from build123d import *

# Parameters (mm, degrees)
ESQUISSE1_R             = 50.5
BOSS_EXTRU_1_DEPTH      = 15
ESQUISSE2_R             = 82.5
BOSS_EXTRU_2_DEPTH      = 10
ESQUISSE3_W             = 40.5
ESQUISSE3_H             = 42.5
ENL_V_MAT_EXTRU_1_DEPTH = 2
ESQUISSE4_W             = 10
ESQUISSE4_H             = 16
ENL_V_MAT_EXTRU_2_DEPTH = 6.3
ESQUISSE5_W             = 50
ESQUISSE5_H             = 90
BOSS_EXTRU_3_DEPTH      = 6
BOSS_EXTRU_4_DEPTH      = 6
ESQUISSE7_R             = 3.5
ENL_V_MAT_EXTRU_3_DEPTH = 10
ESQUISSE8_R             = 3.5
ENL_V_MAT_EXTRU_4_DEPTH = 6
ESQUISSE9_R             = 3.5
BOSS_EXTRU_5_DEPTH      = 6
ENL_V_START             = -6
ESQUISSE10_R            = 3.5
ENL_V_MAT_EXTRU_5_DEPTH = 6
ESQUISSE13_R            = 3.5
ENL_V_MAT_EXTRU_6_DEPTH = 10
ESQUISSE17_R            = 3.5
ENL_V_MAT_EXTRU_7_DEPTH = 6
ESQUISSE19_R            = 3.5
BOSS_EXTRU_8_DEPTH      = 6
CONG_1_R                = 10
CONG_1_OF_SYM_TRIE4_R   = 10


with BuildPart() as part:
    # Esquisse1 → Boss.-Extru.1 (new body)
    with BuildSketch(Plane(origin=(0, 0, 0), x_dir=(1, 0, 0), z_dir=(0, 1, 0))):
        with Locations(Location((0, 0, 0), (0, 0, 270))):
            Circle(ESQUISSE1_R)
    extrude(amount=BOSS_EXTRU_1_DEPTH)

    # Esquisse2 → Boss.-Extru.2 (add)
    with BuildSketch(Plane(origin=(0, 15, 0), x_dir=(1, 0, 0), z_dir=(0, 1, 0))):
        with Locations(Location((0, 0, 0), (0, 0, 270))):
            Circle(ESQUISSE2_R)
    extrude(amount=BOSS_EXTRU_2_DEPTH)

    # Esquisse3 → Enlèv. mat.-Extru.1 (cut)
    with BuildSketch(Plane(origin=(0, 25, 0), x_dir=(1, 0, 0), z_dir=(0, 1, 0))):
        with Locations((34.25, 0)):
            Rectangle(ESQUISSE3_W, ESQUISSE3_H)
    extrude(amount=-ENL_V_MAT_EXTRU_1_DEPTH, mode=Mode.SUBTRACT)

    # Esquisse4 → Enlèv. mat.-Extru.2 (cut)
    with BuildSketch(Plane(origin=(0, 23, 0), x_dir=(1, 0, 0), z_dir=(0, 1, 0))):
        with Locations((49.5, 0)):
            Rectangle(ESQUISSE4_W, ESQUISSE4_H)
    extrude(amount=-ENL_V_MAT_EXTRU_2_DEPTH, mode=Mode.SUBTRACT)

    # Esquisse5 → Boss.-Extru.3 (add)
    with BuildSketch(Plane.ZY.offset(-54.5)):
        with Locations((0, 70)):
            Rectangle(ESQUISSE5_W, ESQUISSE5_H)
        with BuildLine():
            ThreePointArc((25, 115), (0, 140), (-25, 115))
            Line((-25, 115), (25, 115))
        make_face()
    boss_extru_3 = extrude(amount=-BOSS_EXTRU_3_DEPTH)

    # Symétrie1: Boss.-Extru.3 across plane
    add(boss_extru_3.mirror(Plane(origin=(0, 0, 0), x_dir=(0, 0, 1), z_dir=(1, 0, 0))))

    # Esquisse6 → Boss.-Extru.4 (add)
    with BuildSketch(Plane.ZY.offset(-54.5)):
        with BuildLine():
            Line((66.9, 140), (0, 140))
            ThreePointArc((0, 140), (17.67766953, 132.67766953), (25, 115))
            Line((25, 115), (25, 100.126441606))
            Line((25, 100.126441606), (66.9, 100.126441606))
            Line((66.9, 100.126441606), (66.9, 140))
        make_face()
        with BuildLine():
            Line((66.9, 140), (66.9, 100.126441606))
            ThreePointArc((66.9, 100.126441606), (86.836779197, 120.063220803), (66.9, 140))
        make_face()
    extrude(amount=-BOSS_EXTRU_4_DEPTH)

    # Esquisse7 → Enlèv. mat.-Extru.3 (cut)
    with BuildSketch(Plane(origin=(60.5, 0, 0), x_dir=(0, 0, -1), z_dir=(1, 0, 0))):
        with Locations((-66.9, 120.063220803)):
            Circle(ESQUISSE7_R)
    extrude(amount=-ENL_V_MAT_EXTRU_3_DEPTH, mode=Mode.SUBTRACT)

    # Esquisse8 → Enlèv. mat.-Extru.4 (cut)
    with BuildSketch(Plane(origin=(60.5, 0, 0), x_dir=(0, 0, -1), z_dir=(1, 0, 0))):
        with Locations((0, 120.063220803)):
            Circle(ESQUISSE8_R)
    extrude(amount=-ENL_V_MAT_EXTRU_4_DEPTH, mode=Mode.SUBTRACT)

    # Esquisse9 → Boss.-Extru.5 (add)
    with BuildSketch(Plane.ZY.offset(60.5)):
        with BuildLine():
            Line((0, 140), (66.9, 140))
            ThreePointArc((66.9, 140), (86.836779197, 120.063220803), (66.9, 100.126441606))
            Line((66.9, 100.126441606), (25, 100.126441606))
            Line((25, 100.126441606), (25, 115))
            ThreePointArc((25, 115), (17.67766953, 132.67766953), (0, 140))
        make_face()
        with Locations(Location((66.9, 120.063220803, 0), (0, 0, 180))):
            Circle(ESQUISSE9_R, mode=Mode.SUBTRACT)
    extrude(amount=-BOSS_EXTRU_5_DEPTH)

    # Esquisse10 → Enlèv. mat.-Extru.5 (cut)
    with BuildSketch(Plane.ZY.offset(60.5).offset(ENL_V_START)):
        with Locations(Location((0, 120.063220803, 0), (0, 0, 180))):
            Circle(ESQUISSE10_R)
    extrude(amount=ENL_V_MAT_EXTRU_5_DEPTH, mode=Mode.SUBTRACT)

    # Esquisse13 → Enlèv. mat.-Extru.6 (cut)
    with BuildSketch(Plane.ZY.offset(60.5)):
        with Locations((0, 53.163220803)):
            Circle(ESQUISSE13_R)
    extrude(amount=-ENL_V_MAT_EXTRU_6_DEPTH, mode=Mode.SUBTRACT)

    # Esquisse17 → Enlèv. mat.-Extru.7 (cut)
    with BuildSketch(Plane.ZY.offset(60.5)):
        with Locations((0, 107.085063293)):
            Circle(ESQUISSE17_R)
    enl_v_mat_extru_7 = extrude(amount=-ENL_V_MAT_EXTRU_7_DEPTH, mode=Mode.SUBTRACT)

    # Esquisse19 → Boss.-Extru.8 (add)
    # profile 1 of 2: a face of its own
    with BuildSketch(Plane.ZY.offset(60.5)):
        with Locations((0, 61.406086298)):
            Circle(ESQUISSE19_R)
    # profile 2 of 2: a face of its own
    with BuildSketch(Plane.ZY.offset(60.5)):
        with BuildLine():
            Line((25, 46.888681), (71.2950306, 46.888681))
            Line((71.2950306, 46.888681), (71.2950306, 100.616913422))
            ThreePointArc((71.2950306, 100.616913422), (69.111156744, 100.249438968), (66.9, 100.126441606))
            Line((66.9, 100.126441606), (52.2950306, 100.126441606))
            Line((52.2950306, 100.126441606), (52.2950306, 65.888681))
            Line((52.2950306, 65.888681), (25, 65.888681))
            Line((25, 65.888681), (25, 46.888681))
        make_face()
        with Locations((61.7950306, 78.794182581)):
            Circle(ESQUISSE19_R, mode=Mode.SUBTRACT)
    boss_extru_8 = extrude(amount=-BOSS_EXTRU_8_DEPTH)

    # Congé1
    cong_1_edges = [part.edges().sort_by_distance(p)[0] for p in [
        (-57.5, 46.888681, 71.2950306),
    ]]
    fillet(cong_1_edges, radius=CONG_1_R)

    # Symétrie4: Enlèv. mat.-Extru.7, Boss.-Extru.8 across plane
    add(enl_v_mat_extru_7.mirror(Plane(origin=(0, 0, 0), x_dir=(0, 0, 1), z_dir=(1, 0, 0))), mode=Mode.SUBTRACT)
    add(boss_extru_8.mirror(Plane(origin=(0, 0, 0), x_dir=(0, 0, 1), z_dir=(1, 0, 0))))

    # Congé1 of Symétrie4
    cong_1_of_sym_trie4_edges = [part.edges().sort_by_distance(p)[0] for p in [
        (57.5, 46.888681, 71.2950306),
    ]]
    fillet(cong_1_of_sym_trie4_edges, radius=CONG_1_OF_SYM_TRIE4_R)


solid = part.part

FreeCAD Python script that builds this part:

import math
import FreeCAD as App
import Part
import Sketcher
from FreeCAD import Vector


def edges_at(feature, points):
    """Names of the edges that pass closest to the given points."""
    edges = feature.Shape.Edges
    near = lambda p: min(range(len(edges)), key=lambda i: edges[i].distToShape(Part.Vertex(*p))[0])
    return sorted({f"Edge{near(p) + 1}" for p in points})

doc = App.newDocument("Part")
body = doc.addObject("PartDesign::Body", "Body")

# Sketch on XZ plane
sketch1 = body.newObject("Sketcher::SketchObject", "Sketch")
sketch1.AttachmentSupport = (doc.getObject("XZ_Plane"), [""])
sketch1.MapMode = "FlatFace"
sketch1.addGeometry(Part.Circle(Vector(0, 0, 0), Vector(0, 0, 1), 50.5), False)
sketch1.addConstraint(Sketcher.Constraint("Coincident", 0, 3, -1, 1))
sketch1.addConstraint(Sketcher.Constraint("Diameter", 0, 101.0))
pad1 = body.newObject("PartDesign::Pad", "Pad")
pad1.Profile = sketch1
pad1.Length = 15
pad1.Reversed = True

# Sketch on XZ plane
sketch2 = body.newObject("Sketcher::SketchObject", "Sketch001")
sketch2.AttachmentSupport = (doc.getObject("XZ_Plane"), [""])
sketch2.MapMode = "FlatFace"
sketch2.AttachmentOffset = App.Placement(Vector(0, 0, -15), App.Rotation())
sketch2.addGeometry(Part.Circle(Vector(0, 0, 0), Vector(0, 0, 1), 82.5), False)
sketch2.addConstraint(Sketcher.Constraint("Coincident", 0, 3, -1, 1))
sketch2.addConstraint(Sketcher.Constraint("Diameter", 0, 165.0))
pad2 = body.newObject("PartDesign::Pad", "Pad001")
pad2.Profile = sketch2
pad2.Length = 10
pad2.Reversed = True

# Sketch on XZ plane
sketch3 = body.newObject("Sketcher::SketchObject", "Sketch002")
sketch3.AttachmentSupport = (doc.getObject("XZ_Plane"), [""])
sketch3.MapMode = "FlatFace"
sketch3.AttachmentOffset = App.Placement(Vector(0, 0, -25), App.Rotation())
sketch3.addGeometry(Part.LineSegment(Vector(14, -21.25, 0), Vector(14, 21.25, 0)), False)
sketch3.addGeometry(Part.LineSegment(Vector(14, 21.25, 0), Vector(54.5, 21.25, 0)), False)
sketch3.addGeometry(Part.LineSegment(Vector(54.5, 21.25, 0), Vector(54.5, -21.25, 0)), False)
sketch3.addGeometry(Part.LineSegment(Vector(54.5, -21.25, 0), Vector(14, -21.25, 0)), False)
sketch3.addConstraint(Sketcher.Constraint("Coincident", 0, 2, 1, 1))
sketch3.addConstraint(Sketcher.Constraint("Coincident", 1, 2, 2, 1))
sketch3.addConstraint(Sketcher.Constraint("Coincident", 2, 2, 3, 1))
sketch3.addConstraint(Sketcher.Constraint("Coincident", 3, 2, 0, 1))
sketch3.addConstraint(Sketcher.Constraint("Vertical", 0))
sketch3.addConstraint(Sketcher.Constraint("Horizontal", 1))
sketch3.addConstraint(Sketcher.Constraint("Vertical", 2))
sketch3.addConstraint(Sketcher.Constraint("Horizontal", 3))
sketch3.addConstraint(Sketcher.Constraint("DistanceX", 1, 1, 1, 2, 40.5))
sketch3.addConstraint(Sketcher.Constraint("DistanceY", 0, 1, 0, 2, 42.5))
sketch3.addConstraint(Sketcher.Constraint("DistanceX", -1, 1, 0, 2, 14.0))
sketch3.addConstraint(Sketcher.Constraint("DistanceY", -1, 1, 0, 2, 21.25))
pocket1 = body.newObject("PartDesign::Pocket", "Pocket")
pocket1.Profile = sketch3
pocket1.Length = 2
pocket1.Reversed = True

# Sketch on XZ plane
sketch4 = body.newObject("Sketcher::SketchObject", "Sketch003")
sketch4.AttachmentSupport = (doc.getObject("XZ_Plane"), [""])
sketch4.MapMode = "FlatFace"
sketch4.AttachmentOffset = App.Placement(Vector(0, 0, -23), App.Rotation())
sketch4.addGeometry(Part.LineSegment(Vector(44.5, -8, 0), Vector(44.5, 8, 0)), False)
sketch4.addGeometry(Part.LineSegment(Vector(44.5, 8, 0), Vector(54.5, 8, 0)), False)
sketch4.addGeometry(Part.LineSegment(Vector(54.5, 8, 0), Vector(54.5, -8, 0)), False)
sketch4.addGeometry(Part.LineSegment(Vector(54.5, -8, 0), Vector(44.5, -8, 0)), False)
sketch4.addConstraint(Sketcher.Constraint("Coincident", 0, 2, 1, 1))
sketch4.addConstraint(Sketcher.Constraint("Coincident", 1, 2, 2, 1))
sketch4.addConstraint(Sketcher.Constraint("Coincident", 2, 2, 3, 1))
sketch4.addConstraint(Sketcher.Constraint("Coincident", 3, 2, 0, 1))
sketch4.addConstraint(Sketcher.Constraint("Vertical", 0))
sketch4.addConstraint(Sketcher.Constraint("Horizontal", 1))
sketch4.addConstraint(Sketcher.Constraint("Vertical", 2))
sketch4.addConstraint(Sketcher.Constraint("Horizontal", 3))
sketch4.addConstraint(Sketcher.Constraint("DistanceX", 1, 1, 1, 2, 10.0))
sketch4.addConstraint(Sketcher.Constraint("DistanceY", 0, 1, 0, 2, 16.0))
sketch4.addConstraint(Sketcher.Constraint("DistanceY", -1, 1, 0, 2, 8.0))
sketch4.addConstraint(Sketcher.Constraint("DistanceX", -1, 1, 0, 2, 44.5))
pocket2 = body.newObject("PartDesign::Pocket", "Pocket001")
pocket2.Profile = sketch4
pocket2.Length = 6.3
pocket2.Reversed = True

# Sketch on YZ plane
sketch5 = body.newObject("Sketcher::SketchObject", "Sketch004")
sketch5.AttachmentSupport = (doc.getObject("YZ_Plane"), [""])
sketch5.MapMode = "FlatFace"
sketch5.AttachmentOffset = App.Placement(Vector(0, 0, 54.5), App.Rotation())
sketch5.addGeometry(Part.LineSegment(Vector(115, -25, 0), Vector(25, -25, 0)), False)
sketch5.addGeometry(Part.LineSegment(Vector(25, -25, 0), Vector(25, 25, 0)), False)
sketch5.addGeometry(Part.LineSegment(Vector(25, 25, 0), Vector(115, 25, 0)), False)
sketch5.addGeometry(Part.ArcOfCircle(Part.Circle(Vector(115, 0, 0), Vector(0, 0, 1), 25), math.radians(-90), math.radians(90)), False)
sketch5.addConstraint(Sketcher.Constraint("Coincident", 0, 2, 1, 1))
sketch5.addConstraint(Sketcher.Constraint("Coincident", 1, 2, 2, 1))
sketch5.addConstraint(Sketcher.Constraint("Tangent", 2, 2, 3, 2))
sketch5.addConstraint(Sketcher.Constraint("Tangent", 3, 1, 0, 1))
sketch5.addConstraint(Sketcher.Constraint("Horizontal", 0))
sketch5.addConstraint(Sketcher.Constraint("Vertical", 1))
sketch5.addConstraint(Sketcher.Constraint("Horizontal", 2))
sketch5.addConstraint(Sketcher.Constraint("PointOnObject", 3, 3, -1))
sketch5.addConstraint(Sketcher.Constraint("Radius", 3, 25.0))
sketch5.addConstraint(Sketcher.Constraint("DistanceX", 0, 2, 0, 1, 90.0))
sketch5.addConstraint(Sketcher.Constraint("DistanceX", -1, 1, 3, 3, 115.0))
pad3 = body.newObject("PartDesign::Pad", "Pad002")
pad3.Profile = sketch5
pad3.Length = 6
doc.recompute()

mirrored = body.newObject("PartDesign::Mirrored", "Mirrored")
mirrored.Originals = [pad3]
mirrored.MirrorPlane = (doc.getObject("YZ_Plane"), [""])
body.Tip = mirrored

# Sketch on YZ plane
sketch6 = body.newObject("Sketcher::SketchObject", "Sketch005")
sketch6.AttachmentSupport = (doc.getObject("YZ_Plane"), [""])
sketch6.MapMode = "FlatFace"
sketch6.AttachmentOffset = App.Placement(Vector(0, 0, 54.5), App.Rotation())
sketch6.addGeometry(Part.LineSegment(Vector(140, 66.9, 0), Vector(140, 0, 0)), False)
sketch6.addGeometry(Part.ArcOfCircle(Part.Circle(Vector(115, 0, 0), Vector(0, 0, 1), 25), math.radians(0), math.radians(90)), False)
sketch6.addGeometry(Part.LineSegment(Vector(115, 25, 0), Vector(100.126442, 25, 0)), False)
sketch6.addGeometry(Part.LineSegment(Vector(100.126442, 25, 0), Vector(100.126442, 66.9, 0)), False)
sketch6.addGeometry(Part.ArcOfCircle(Part.Circle(Vector(120.063221, 66.9, 0), Vector(0, 0, 1), 19.936779), math.radians(0), math.radians(180)), False)
sketch6.addConstraint(Sketcher.Constraint("Tangent", 0, 2, 1, 1))
sketch6.addConstraint(Sketcher.Constraint("Tangent", 1, 2, 2, 1))
sketch6.addConstraint(Sketcher.Constraint("Coincident", 2, 2, 3, 1))
sketch6.addConstraint(Sketcher.Constraint("Tangent", 3, 2, 4, 2))
sketch6.addConstraint(Sketcher.Constraint("Tangent", 4, 1, 0, 1))
sketch6.addConstraint(Sketcher.Constraint("Vertical", 0))
sketch6.addConstraint(Sketcher.Constraint("Horizontal", 2))
sketch6.addConstraint(Sketcher.Constraint("Vertical", 3))
sketch6.addConstraint(Sketcher.Constraint("PointOnObject", 1, 3, -1))
sketch6.addConstraint(Sketcher.Constraint("Radius", 1, 25.0))
sketch6.addConstraint(Sketcher.Constraint("DistanceY", 0, 2, 0, 1, 66.9))
sketch6.addConstraint(Sketcher.Constraint("DistanceX", -1, 1, 1, 3, 115.0))
sketch6.addConstraint(Sketcher.Constraint("Radius", 4, 19.936779))
pad4 = body.newObject("PartDesign::Pad", "Pad003")
pad4.Profile = sketch6
pad4.Length = 6

# Sketch on YZ plane
sketch7 = body.newObject("Sketcher::SketchObject", "Sketch006")
sketch7.AttachmentSupport = (doc.getObject("YZ_Plane"), [""])
sketch7.MapMode = "FlatFace"
sketch7.AttachmentOffset = App.Placement(Vector(0, 0, 60.5), App.Rotation())
sketch7.addGeometry(Part.Circle(Vector(120.063221, 66.9, 0), Vector(0, 0, 1), 3.5), False)
sketch7.addConstraint(Sketcher.Constraint("Diameter", 0, 7.0))
sketch7.addConstraint(Sketcher.Constraint("DistanceY", -1, 1, 0, 3, 66.9))
sketch7.addConstraint(Sketcher.Constraint("DistanceX", -1, 1, 0, 3, 120.063221))
pocket3 = body.newObject("PartDesign::Pocket", "Pocket002")
pocket3.Profile = sketch7
pocket3.Length = 10

# Sketch on YZ plane
sketch8 = body.newObject("Sketcher::SketchObject", "Sketch007")
sketch8.AttachmentSupport = (doc.getObject("YZ_Plane"), [""])
sketch8.MapMode = "FlatFace"
sketch8.AttachmentOffset = App.Placement(Vector(0, 0, 60.5), App.Rotation())
sketch8.addGeometry(Part.Circle(Vector(120.063221, 0, 0), Vector(0, 0, 1), 3.5), False)
sketch8.addConstraint(Sketcher.Constraint("PointOnObject", 0, 3, -1))
sketch8.addConstraint(Sketcher.Constraint("Diameter", 0, 7.0))
sketch8.addConstraint(Sketcher.Constraint("DistanceX", -1, 1, 0, 3, 120.063221))
pocket4 = body.newObject("PartDesign::Pocket", "Pocket003")
pocket4.Profile = sketch8
pocket4.Length = 6

# Sketch on YZ plane
sketch9 = body.newObject("Sketcher::SketchObject", "Sketch008")
sketch9.AttachmentSupport = (doc.getObject("YZ_Plane"), [""])
sketch9.MapMode = "FlatFace"
sketch9.AttachmentOffset = App.Placement(Vector(0, 0, -60.5), App.Rotation())
sketch9.addGeometry(Part.LineSegment(Vector(140, 66.9, 0), Vector(140, 0, 0)), False)
sketch9.addGeometry(Part.ArcOfCircle(Part.Circle(Vector(115, 0, 0), Vector(0, 0, 1), 25), math.radians(0), math.radians(90)), False)
sketch9.addGeometry(Part.LineSegment(Vector(115, 25, 0), Vector(100.126442, 25, 0)), False)
sketch9.addGeometry(Part.LineSegment(Vector(100.126442, 25, 0), Vector(100.126442, 66.9, 0)), False)
sketch9.addGeometry(Part.ArcOfCircle(Part.Circle(Vector(120.063221, 66.9, 0), Vector(0, 0, 1), 19.936779), math.radians(0), math.radians(180)), False)
sketch9.addGeometry(Part.Circle(Vector(120.063221, 66.9, 0), Vector(0, 0, 1), 3.5), False)
sketch9.addConstraint(Sketcher.Constraint("Tangent", 0, 2, 1, 1))
sketch9.addConstraint(Sketcher.Constraint("Tangent", 1, 2, 2, 1))
sketch9.addConstraint(Sketcher.Constraint("Coincident", 2, 2, 3, 1))
sketch9.addConstraint(Sketcher.Constraint("Tangent", 3, 2, 4, 2))
sketch9.addConstraint(Sketcher.Constraint("Tangent", 4, 1, 0, 1))
sketch9.addConstraint(Sketcher.Constraint("Vertical", 0))
sketch9.addConstraint(Sketcher.Constraint("Horizontal", 2))
sketch9.addConstraint(Sketcher.Constraint("Vertical", 3))
sketch9.addConstraint(Sketcher.Constraint("Coincident", 5, 3, 4, 3))
sketch9.addConstraint(Sketcher.Constraint("PointOnObject", 1, 3, -1))
sketch9.addConstraint(Sketcher.Constraint("Diameter", 5, 7.0))
sketch9.addConstraint(Sketcher.Constraint("Radius", 1, 25.0))
sketch9.addConstraint(Sketcher.Constraint("DistanceY", 0, 2, 0, 1, 66.9))
sketch9.addConstraint(Sketcher.Constraint("DistanceX", -1, 1, 1, 3, 115.0))
sketch9.addConstraint(Sketcher.Constraint("Radius", 4, 19.936779))
pad5 = body.newObject("PartDesign::Pad", "Pad004")
pad5.Profile = sketch9
pad5.Length = 6

# Sketch on YZ plane
sketch10 = body.newObject("Sketcher::SketchObject", "Sketch009")
sketch10.AttachmentSupport = (doc.getObject("YZ_Plane"), [""])
sketch10.MapMode = "FlatFace"
sketch10.AttachmentOffset = App.Placement(Vector(0, 0, -54.5), App.Rotation())
sketch10.addGeometry(Part.Circle(Vector(120.063221, 0, 0), Vector(0, 0, 1), 3.5), False)
sketch10.addConstraint(Sketcher.Constraint("PointOnObject", 0, 3, -1))
sketch10.addConstraint(Sketcher.Constraint("Diameter", 0, 7.0))
sketch10.addConstraint(Sketcher.Constraint("DistanceX", -1, 1, 0, 3, 120.063221))
pocket5 = body.newObject("PartDesign::Pocket", "Pocket004")
pocket5.Profile = sketch10
pocket5.Length = 6

# Sketch on YZ plane
sketch11 = body.newObject("Sketcher::SketchObject", "Sketch010")
sketch11.AttachmentSupport = (doc.getObject("YZ_Plane"), [""])
sketch11.MapMode = "FlatFace"
sketch11.AttachmentOffset = App.Placement(Vector(0, 0, -60.5), App.Rotation())
sketch11.addGeometry(Part.Circle(Vector(53.163221, 0, 0), Vector(0, 0, 1), 3.5), False)
sketch11.addConstraint(Sketcher.Constraint("PointOnObject", 0, 3, -1))
sketch11.addConstraint(Sketcher.Constraint("Diameter", 0, 7.0))
sketch11.addConstraint(Sketcher.Constraint("DistanceX", -1, 1, 0, 3, 53.163221))
pocket6 = body.newObject("PartDesign::Pocket", "Pocket005")
pocket6.Profile = sketch11
pocket6.Length = 10
pocket6.Reversed = True

# Sketch on YZ plane
sketch12 = body.newObject("Sketcher::SketchObject", "Sketch011")
sketch12.AttachmentSupport = (doc.getObject("YZ_Plane"), [""])
sketch12.MapMode = "FlatFace"
sketch12.AttachmentOffset = App.Placement(Vector(0, 0, -60.5), App.Rotation())
sketch12.addGeometry(Part.Circle(Vector(107.085063, 0, 0), Vector(0, 0, 1), 3.5), False)
sketch12.addConstraint(Sketcher.Constraint("PointOnObject", 0, 3, -1))
sketch12.addConstraint(Sketcher.Constraint("Diameter", 0, 7.0))
sketch12.addConstraint(Sketcher.Constraint("DistanceX", -1, 1, 0, 3, 107.085063))
pocket7 = body.newObject("PartDesign::Pocket", "Pocket006")
pocket7.Profile = sketch12
pocket7.Length = 6
pocket7.Reversed = True

# Sketch on YZ plane
sketch13 = body.newObject("Sketcher::SketchObject", "Sketch012")
sketch13.AttachmentSupport = (doc.getObject("YZ_Plane"), [""])
sketch13.MapMode = "FlatFace"
sketch13.AttachmentOffset = App.Placement(Vector(0, 0, -60.5), App.Rotation())
sketch13.addGeometry(Part.Circle(Vector(61.406086, 0, 0), Vector(0, 0, 1), 3.5), False)
sketch13.addGeometry(Part.LineSegment(Vector(46.888681, 25, 0), Vector(46.888681, 71.295031, 0)), False)
sketch13.addGeometry(Part.LineSegment(Vector(46.888681, 71.295031, 0), Vector(100.616913, 71.295031, 0)), False)
sketch13.addGeometry(Part.ArcOfCircle(Part.Circle(Vector(120.063221, 66.9, 0), Vector(0, 0, 1), 19.936779), math.radians(167.26463), math.radians(180)), False)
sketch13.addGeometry(Part.LineSegment(Vector(100.126442, 66.9, 0), Vector(100.126442, 52.295031, 0)), False)
sketch13.addGeometry(Part.LineSegment(Vector(100.126442, 52.295031, 0), Vector(65.888681, 52.295031, 0)), False)
sketch13.addGeometry(Part.LineSegment(Vector(65.888681, 52.295031, 0), Vector(65.888681, 25, 0)), False)
sketch13.addGeometry(Part.LineSegment(Vector(65.888681, 25, 0), Vector(46.888681, 25, 0)), False)
sketch13.addGeometry(Part.Circle(Vector(78.794183, 61.795031, 0), Vector(0, 0, 1), 3.5), False)
sketch13.addConstraint(Sketcher.Constraint("Coincident", 1, 2, 2, 1))
sketch13.addConstraint(Sketcher.Constraint("Coincident", 2, 2, 3, 1))
sketch13.addConstraint(Sketcher.Constraint("Tangent", 3, 2, 4, 1))
sketch13.addConstraint(Sketcher.Constraint("Coincident", 4, 2, 5, 1))
sketch13.addConstraint(Sketcher.Constraint("Coincident", 5, 2, 6, 1))
sketch13.addConstraint(Sketcher.Constraint("Coincident", 6, 2, 7, 1))
sketch13.addConstraint(Sketcher.Constraint("Coincident", 7, 2, 1, 1))
sketch13.addConstraint(Sketcher.Constraint("Vertical", 1))
sketch13.addConstraint(Sketcher.Constraint("Horizontal", 2))
sketch13.addConstraint(Sketcher.Constraint("Vertical", 4))
sketch13.addConstraint(Sketcher.Constraint("Horizontal", 5))
sketch13.addConstraint(Sketcher.Constraint("Vertical", 6))
sketch13.addConstraint(Sketcher.Constraint("Horizontal", 7))
sketch13.addConstraint(Sketcher.Constraint("Equal", 0, 8))
sketch13.addConstraint(Sketcher.Constraint("PointOnObject", 0, 3, -1))
sketch13.addConstraint(Sketcher.Constraint("Diameter", 0, 7.0))
sketch13.addConstraint(Sketcher.Constraint("DistanceX", 7, 2, 7, 1, 19.0))
sketch13.addConstraint(Sketcher.Constraint("DistanceY", -1, 1, 6, 2, 25.0))
sketch13.addConstraint(Sketcher.Constraint("DistanceY", 4, 2, 2, 2, 19.0))
sketch13.addConstraint(Sketcher.Constraint("DistanceY", -1, 1, 3, 3, 66.9))
sketch13.addConstraint(Sketcher.Constraint("DistanceY", 8, 3, 1, 2, 9.5))
sketch13.addConstraint(Sketcher.Constraint("Radius", 3, 19.936779))
sketch13.addConstraint(Sketcher.Constraint("DistanceX", 5, 2, 5, 1, 34.237761))
sketch13.addConstraint(Sketcher.Constraint("DistanceY", 1, 1, 1, 2, 46.295031))
sketch13.addConstraint(Sketcher.Constraint("DistanceX", 1, 2, 8, 3, 31.905502))
sketch13.addConstraint(Sketcher.Constraint("DistanceX", -1, 1, 3, 3, 120.063221))
sketch13.addConstraint(Sketcher.Constraint("DistanceX", -1, 1, 0, 3, 61.406086))
pad6 = body.newObject("PartDesign::Pad", "Pad005")
pad6.Profile = sketch13
pad6.Length = 6
doc.recompute()

fillet = body.newObject("PartDesign::Fillet", "Fillet")
fillet.Base = (pad6, edges_at(pad6, [(-57.5, 46.889, 71.295)]))
fillet.Radius = 10
doc.recompute()

mirrored2 = body.newObject("PartDesign::Mirrored", "Mirrored001")
mirrored2.Originals = [pocket7, pad6]
mirrored2.MirrorPlane = (doc.getObject("YZ_Plane"), [""])
body.Tip = mirrored2
doc.recompute()

fillet2 = body.newObject("PartDesign::Fillet", "Fillet001")
fillet2.Base = (mirrored2, edges_at(mirrored2, [(57.5, 46.889, 71.295)]))
fillet2.Radius = 10

doc.recompute()
